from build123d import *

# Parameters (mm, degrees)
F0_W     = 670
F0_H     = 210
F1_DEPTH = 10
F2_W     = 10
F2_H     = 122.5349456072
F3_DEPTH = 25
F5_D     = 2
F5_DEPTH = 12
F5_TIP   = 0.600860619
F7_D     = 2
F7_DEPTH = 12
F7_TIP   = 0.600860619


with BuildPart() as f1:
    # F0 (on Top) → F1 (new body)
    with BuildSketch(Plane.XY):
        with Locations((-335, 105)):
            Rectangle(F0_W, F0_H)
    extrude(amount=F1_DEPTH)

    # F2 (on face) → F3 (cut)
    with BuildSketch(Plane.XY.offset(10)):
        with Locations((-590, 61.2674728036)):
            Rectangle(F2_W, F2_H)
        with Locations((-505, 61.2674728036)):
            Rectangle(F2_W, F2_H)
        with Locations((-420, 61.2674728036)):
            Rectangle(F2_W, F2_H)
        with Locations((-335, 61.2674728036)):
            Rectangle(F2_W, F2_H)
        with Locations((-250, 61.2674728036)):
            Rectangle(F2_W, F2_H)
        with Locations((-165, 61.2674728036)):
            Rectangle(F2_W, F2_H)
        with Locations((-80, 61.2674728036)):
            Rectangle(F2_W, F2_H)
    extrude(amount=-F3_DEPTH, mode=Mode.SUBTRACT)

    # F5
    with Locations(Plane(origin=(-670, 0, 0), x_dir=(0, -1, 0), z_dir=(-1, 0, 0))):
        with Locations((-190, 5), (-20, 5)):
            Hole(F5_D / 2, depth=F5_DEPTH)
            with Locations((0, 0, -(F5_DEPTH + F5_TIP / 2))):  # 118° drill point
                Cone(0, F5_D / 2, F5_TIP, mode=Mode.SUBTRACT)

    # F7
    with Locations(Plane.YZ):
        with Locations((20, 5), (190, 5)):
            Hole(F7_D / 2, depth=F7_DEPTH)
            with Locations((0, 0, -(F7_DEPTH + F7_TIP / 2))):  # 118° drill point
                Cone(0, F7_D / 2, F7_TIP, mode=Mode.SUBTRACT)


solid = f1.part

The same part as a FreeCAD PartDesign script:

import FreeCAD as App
import Part
import Sketcher

doc = App.newDocument("Part")
body = doc.addObject("PartDesign::Body", "Body")

# Sketch on XY plane
sketch1 = body.newObject("Sketcher::SketchObject", "Sketch")
sketch1.AttachmentSupport = (doc.getObject("XY_Plane"), [""])
sketch1.MapMode = "FlatFace"
sketch1.addGeometry(Part.LineSegment(App.Vector(-670, 210, 0), App.Vector(-670, 0, 0)), False)
sketch1.addGeometry(Part.LineSegment(App.Vector(-670, 0, 0), App.Vector(0, 0, 0)), False)
sketch1.addGeometry(Part.LineSegment(App.Vector(0, 0, 0), App.Vector(0, 210, 0)), False)
sketch1.addGeometry(Part.LineSegment(App.Vector(0, 210, 0), App.Vector(-670, 210, 0)), False)
sketch1.addConstraint(Sketcher.Constraint("Coincident", 0, 2, 1, 1))
sketch1.addConstraint(Sketcher.Constraint("Coincident", 1, 2, 2, 1))
sketch1.addConstraint(Sketcher.Constraint("Coincident", 2, 2, 3, 1))
sketch1.addConstraint(Sketcher.Constraint("Coincident", 3, 2, 0, 1))
sketch1.addConstraint(Sketcher.Constraint("Vertical", 0))
sketch1.addConstraint(Sketcher.Constraint("Horizontal", 1))
sketch1.addConstraint(Sketcher.Constraint("Vertical", 2))
sketch1.addConstraint(Sketcher.Constraint("Horizontal", 3))
sketch1.addConstraint(Sketcher.Constraint("Coincident", 1, 2, -1, 1))
sketch1.addConstraint(Sketcher.Constraint("DistanceX", 1, 1, 1, 2, 670.0))
sketch1.addConstraint(Sketcher.Constraint("DistanceY", 0, 2, 0, 1, 210.0))
pad1 = body.newObject("PartDesign::Pad", "Pad")
pad1.Profile = sketch1
pad1.Length = 10

# Sketch on XY plane
sketch2 = body.newObject("Sketcher::SketchObject", "Sketch001")
sketch2.AttachmentSupport = (doc.getObject("XY_Plane"), [""])
sketch2.MapMode = "FlatFace"
sketch2.AttachmentOffset = App.Placement(App.Vector(0, 0, 10), App.Rotation())
sketch2.addGeometry(Part.LineSegment(App.Vector(-595, 123, 0), App.Vector(-595, 0, 0)), False)
sketch2.addGeometry(Part.LineSegment(App.Vector(-595, 0, 0), App.Vector(-585, 0, 0)), False)
sketch2.addGeometry(Part.LineSegment(App.Vector(-585, 0, 0), App.Vector(-585, 123, 0)), False)
sketch2.addGeometry(Part.LineSegment(App.Vector(-585, 123, 0), App.Vector(-595, 123, 0)), False)
sketch2.addGeometry(Part.LineSegment(App.Vector(-510, 123, 0), App.Vector(-510, 0, 0)), False)
sketch2.addGeometry(Part.LineSegment(App.Vector(-510, 0, 0), App.Vector(-500, 0, 0)), False)
sketch2.addGeometry(Part.LineSegment(App.Vector(-500, 0, 0), App.Vector(-500, 123, 0)), False)
sketch2.addGeometry(Part.LineSegment(App.Vector(-500, 123, 0), App.Vector(-510, 123, 0)), False)
sketch2.addGeometry(Part.LineSegment(App.Vector(-425, 123, 0), App.Vector(-425, 0, 0)), False)
sketch2.addGeometry(Part.LineSegment(App.Vector(-425, 0, 0), App.Vector(-415, 0, 0)), False)
sketch2.addGeometry(Part.LineSegment(App.Vector(-415, 0, 0), App.Vector(-415, 123, 0)), False)
sketch2.addGeometry(Part.LineSegment(App.Vector(-415, 123, 0), App.Vector(-425, 123, 0)), False)
sketch2.addGeometry(Part.LineSegment(App.Vector(-340, 123, 0), App.Vector(-340, 0, 0)), False)
sketch2.addGeometry(Part.LineSegment(App.Vector(-340, 0, 0), App.Vector(-330, 0, 0)), False)
sketch2.addGeometry(Part.LineSegment(App.Vector(-330, 0, 0), App.Vector(-330, 123, 0)), False)
sketch2.addGeometry(Part.LineSegment(App.Vector(-330, 123, 0), App.Vector(-340, 123, 0)), False)
sketch2.addGeometry(Part.LineSegment(App.Vector(-255, 123, 0), App.Vector(-255, 0, 0)), False)
sketch2.addGeometry(Part.LineSegment(App.Vector(-255, 0, 0), App.Vector(-245, 0, 0)), False)
sketch2.addGeometry(Part.LineSegment(App.Vector(-245, 0, 0), App.Vector(-245, 123, 0)), False)
sketch2.addGeometry(Part.LineSegment(App.Vector(-245, 123, 0), App.Vector(-255, 123, 0)), False)
sketch2.addGeometry(Part.LineSegment(App.Vector(-170, 123, 0), App.Vector(-170, 0, 0)), False)
sketch2.addGeometry(Part.LineSegment(App.Vector(-170, 0, 0), App.Vector(-160, 0, 0)), False)
sketch2.addGeometry(Part.LineSegment(App.Vector(-160, 0, 0), App.Vector(-160, 123, 0)), False)
sketch2.addGeometry(Part.LineSegment(App.Vector(-160, 123, 0), App.Vector(-170, 123, 0)), False)
sketch2.addGeometry(Part.LineSegment(App.Vector(-85, 123, 0), App.Vector(-85, 0, 0)), False)
sketch2.addGeometry(Part.LineSegment(App.Vector(-85, 0, 0), App.Vector(-75, 0, 0)), False)
sketch2.addGeometry(Part.LineSegment(App.Vector(-75, 0, 0), App.Vector(-75, 123, 0)), False)
sketch2.addGeometry(Part.LineSegment(App.Vector(-75, 123, 0), App.Vector(-85, 123, 0)), False)
sketch2.addConstraint(Sketcher.Constraint("Coincident", 0, 2, 1, 1))
sketch2.addConstraint(Sketcher.Constraint("Coincident", 1, 2, 2, 1))
sketch2.addConstraint(Sketcher.Constraint("Coincident", 2, 2, 3, 1))
sketch2.addConstraint(Sketcher.Constraint("Coincident", 3, 2, 0, 1))
sketch2.addConstraint(Sketcher.Constraint("Coincident", 4, 2, 5, 1))
sketch2.addConstraint(Sketcher.Constraint("Coincident", 5, 2, 6, 1))
sketch2.addConstraint(Sketcher.Constraint("Coincident", 6, 2, 7, 1))
sketch2.addConstraint(Sketcher.Constraint("Coincident", 7, 2, 4, 1))
sketch2.addConstraint(Sketcher.Constraint("Coincident", 8, 2, 9, 1))
sketch2.addConstraint(Sketcher.Constraint("Coincident", 9, 2, 10, 1))
sketch2.addConstraint(Sketcher.Constraint("Coincident", 10, 2, 11, 1))
sketch2.addConstraint(Sketcher.Constraint("Coincident", 11, 2, 8, 1))
sketch2.addConstraint(Sketcher.Constraint("Coincident", 12, 2, 13, 1))
sketch2.addConstraint(Sketcher.Constraint("Coincident", 13, 2, 14, 1))
sketch2.addConstraint(Sketcher.Constraint("Coincident", 14, 2, 15, 1))
sketch2.addConstraint(Sketcher.Constraint("Coincident", 15, 2, 12, 1))
sketch2.addConstraint(Sketcher.Constraint("Coincident", 16, 2, 17, 1))
sketch2.addConstraint(Sketcher.Constraint("Coincident", 17, 2, 18, 1))
sketch2.addConstraint(Sketcher.Constraint("Coincident", 18, 2, 19, 1))
sketch2.addConstraint(Sketcher.Constraint("Coincident", 19, 2, 16, 1))
sketch2.addConstraint(Sketcher.Constraint("Coincident", 20, 2, 21, 1))
sketch2.addConstraint(Sketcher.Constraint("Coincident", 21, 2, 22, 1))
sketch2.addConstraint(Sketcher.Constraint("Coincident", 22, 2, 23, 1))
sketch2.addConstraint(Sketcher.Constraint("Coincident", 23, 2, 20, 1))
sketch2.addConstraint(Sketcher.Constraint("Coincident", 24, 2, 25, 1))
sketch2.addConstraint(Sketcher.Constraint("Coincident", 25, 2, 26, 1))
sketch2.addConstraint(Sketcher.Constraint("Coincident", 26, 2, 27, 1))
sketch2.addConstraint(Sketcher.Constraint("Coincident", 27, 2, 24, 1))
sketch2.addConstraint(Sketcher.Constraint("Vertical", 0))
sketch2.addConstraint(Sketcher.Constraint("Horizontal", 1))
sketch2.addConstraint(Sketcher.Constraint("Vertical", 2))
sketch2.addConstraint(Sketcher.Constraint("Horizontal", 3))
sketch2.addConstraint(Sketcher.Constraint("Vertical", 4))
sketch2.addConstraint(Sketcher.Constraint("Horizontal", 5))
sketch2.addConstraint(Sketcher.Constraint("Vertical", 6))
sketch2.addConstraint(Sketcher.Constraint("Horizontal", 7))
sketch2.addConstraint(Sketcher.Constraint("Vertical", 8))
sketch2.addConstraint(Sketcher.Constraint("Horizontal", 9))
sketch2.addConstraint(Sketcher.Constraint("Vertical", 10))
sketch2.addConstraint(Sketcher.Constraint("Horizontal", 11))
sketch2.addConstraint(Sketcher.Constraint("Vertical", 12))
sketch2.addConstraint(Sketcher.Constraint("Horizontal", 13))
sketch2.addConstraint(Sketcher.Constraint("Vertical", 14))
sketch2.addConstraint(Sketcher.Constraint("Horizontal", 15))
sketch2.addConstraint(Sketcher.Constraint("Vertical", 16))
sketch2.addConstraint(Sketcher.Constraint("Horizontal", 17))
sketch2.addConstraint(Sketcher.Constraint("Vertical", 18))
sketch2.addConstraint(Sketcher.Constraint("Horizontal", 19))
sketch2.addConstraint(Sketcher.Constraint("Vertical", 20))
sketch2.addConstraint(Sketcher.Constraint("Horizontal", 21))
sketch2.addConstraint(Sketcher.Constraint("Vertical", 22))
sketch2.addConstraint(Sketcher.Constraint("Horizontal", 23))
sketch2.addConstraint(Sketcher.Constraint("Vertical", 24))
sketch2.addConstraint(Sketcher.Constraint("Horizontal", 25))
sketch2.addConstraint(Sketcher.Constraint("Vertical", 26))
sketch2.addConstraint(Sketcher.Constraint("Horizontal", 27))
sketch2.addConstraint(Sketcher.Constraint("PointOnObject", 0, 2, -1))
sketch2.addConstraint(Sketcher.Constraint("PointOnObject", 4, 2, -1))
sketch2.addConstraint(Sketcher.Constraint("PointOnObject", 8, 2, -1))
sketch2.addConstraint(Sketcher.Constraint("PointOnObject", 12, 2, -1))
sketch2.addConstraint(Sketcher.Constraint("PointOnObject", 16, 2, -1))
sketch2.addConstraint(Sketcher.Constraint("PointOnObject", 20, 2, -1))
sketch2.addConstraint(Sketcher.Constraint("PointOnObject", 24, 2, -1))
sketch2.addConstraint(Sketcher.Constraint("Horizontal", 3, 2, 6, 2))
sketch2.addConstraint(Sketcher.Constraint("Horizontal", 7, 2, 10, 2))
sketch2.addConstraint(Sketcher.Constraint("Horizontal", 11, 2, 14, 2))
sketch2.addConstraint(Sketcher.Constraint("Horizontal", 15, 2, 18, 2))
sketch2.addConstraint(Sketcher.Constraint("Horizontal", 19, 2, 22, 2))
sketch2.addConstraint(Sketcher.Constraint("Horizontal", 23, 2, 26, 2))
sketch2.addConstraint(Sketcher.Constraint("Equal", 3, 5))
sketch2.addConstraint(Sketcher.Constraint("Equal", 7, 9))
sketch2.addConstraint(Sketcher.Constraint("Equal", 11, 13))
sketch2.addConstraint(Sketcher.Constraint("Equal", 15, 17))
sketch2.addConstraint(Sketcher.Constraint("Equal", 19, 21))
sketch2.addConstraint(Sketcher.Constraint("Equal", 23, 25))
sketch2.addConstraint(Sketcher.Constraint("DistanceX", 1, 1, 1, 2, 10.0))
sketch2.addConstraint(Sketcher.Constraint("DistanceX", 0, 2, -1, 1, 595.0))
sketch2.addConstraint(Sketcher.Constraint("DistanceX", 4, 2, -1, 1, 510.0))
sketch2.addConstraint(Sketcher.Constraint("DistanceX", 8, 2, -1, 1, 425.0))
sketch2.addConstraint(Sketcher.Constraint("DistanceX", 12, 2, -1, 1, 340.0))
sketch2.addConstraint(Sketcher.Constraint("DistanceX", 16, 2, -1, 1, 255.0))
sketch2.addConstraint(Sketcher.Constraint("DistanceX", 20, 2, -1, 1, 170.0))
sketch2.addConstraint(Sketcher.Constraint("DistanceX", 24, 2, -1, 1, 85.0))
sketch2.addConstraint(Sketcher.Constraint("DistanceY", 0, 2, 0, 1, 122.534946))
pocket1 = body.newObject("PartDesign::Pocket", "Pocket")
pocket1.Profile = sketch2
pocket1.Length = 25

# Sketch on YZ plane
sketch3 = body.newObject("Sketcher::SketchObject", "Sketch002")
sketch3.AttachmentSupport = (doc.getObject("YZ_Plane"), [""])
sketch3.MapMode = "FlatFace"
sketch3.AttachmentOffset = App.Placement(App.Vector(0, 0, -670), App.Rotation())
sketch3.addGeometry(Part.Circle(App.Vector(190, 5, 0), App.Vector(0, 0, 1), 1), False)
sketch3.addGeometry(Part.Circle(App.Vector(20, 5, 0), App.Vector(0, 0, 1), 1), False)
sketch3.addConstraint(Sketcher.Constraint("Equal", 0, 1))
sketch3.addConstraint(Sketcher.Constraint("Horizontal", 0, 3, 1, 3))
sketch3.addConstraint(Sketcher.Constraint("Diameter", 0, 2.0))
sketch3.addConstraint(Sketcher.Constraint("DistanceX", -1, 1, 0, 3, 190.0))
sketch3.addConstraint(Sketcher.Constraint("DistanceY", -1, 1, 0, 3, 5.0))
sketch3.addConstraint(Sketcher.Constraint("DistanceX", -1, 1, 1, 3, 20.0))
doc.recompute()
hole = body.newObject("PartDesign::Hole", "Hole")
hole.Profile = sketch3
hole.ThreadType = "None"
hole.Diameter = 2
hole.DepthType = "Dimension"
hole.Depth = 12
hole.DrillPoint = "Angled"
hole.DrillPointAngle = 118
hole.Reversed = True

# Sketch on YZ plane
sketch4 = body.newObject("Sketcher::SketchObject", "Sketch003")
sketch4.AttachmentSupport = (doc.getObject("YZ_Plane"), [""])
sketch4.MapMode = "FlatFace"
sketch4.addGeometry(Part.Circle(App.Vector(20, 5, 0), App.Vector(0, 0, 1), 1), False)
sketch4.addGeometry(Part.Circle(App.Vector(190, 5, 0), App.Vector(0, 0, 1), 1), False)
sketch4.addConstraint(Sketcher.Constraint("Equal", 0, 1))
sketch4.addConstraint(Sketcher.Constraint("Horizontal", 0, 3, 1, 3))
sketch4.addConstraint(Sketcher.Constraint("Diameter", 0, 2.0))
sketch4.addConstraint(Sketcher.Constraint("DistanceX", -1, 1, 0, 3, 20.0))
sketch4.addConstraint(Sketcher.Constraint("DistanceY", -1, 1, 0, 3, 5.0))
sketch4.addConstraint(Sketcher.Constraint("DistanceX", -1, 1, 1, 3, 190.0))
doc.recompute()
hole2 = body.newObject("PartDesign::Hole", "Hole001")
hole2.Profile = sketch4
hole2.ThreadType = "None"
hole2.Diameter = 2
hole2.DepthType = "Dimension"
hole2.Depth = 12
hole2.DrillPoint = "Angled"
hole2.DrillPointAngle = 118

doc.recompute()
